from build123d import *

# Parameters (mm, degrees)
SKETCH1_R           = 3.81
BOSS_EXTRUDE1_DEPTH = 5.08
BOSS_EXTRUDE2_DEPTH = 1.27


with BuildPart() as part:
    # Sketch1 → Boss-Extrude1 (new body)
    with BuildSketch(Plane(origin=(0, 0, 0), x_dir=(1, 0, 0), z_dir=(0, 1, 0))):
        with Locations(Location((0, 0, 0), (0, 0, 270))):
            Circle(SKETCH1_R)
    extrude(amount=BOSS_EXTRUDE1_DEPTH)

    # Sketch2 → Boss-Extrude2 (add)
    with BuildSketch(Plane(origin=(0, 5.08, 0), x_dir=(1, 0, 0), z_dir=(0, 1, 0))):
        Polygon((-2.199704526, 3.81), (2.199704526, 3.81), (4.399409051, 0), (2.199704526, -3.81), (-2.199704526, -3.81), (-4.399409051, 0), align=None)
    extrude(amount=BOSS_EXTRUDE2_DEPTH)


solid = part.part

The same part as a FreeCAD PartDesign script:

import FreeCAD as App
import Part
import Sketcher

V = App.Vector
Q = App.Units.Quantity


def add_polygon(sketch, points):
    """Adds a closed chain of lines whose ends are joined by coincident constraints."""
    first, n = sketch.GeometryCount, len(points)
    for a, b in zip(points, points[1:] + points[:1]):
        sketch.addGeometry(Part.LineSegment(App.Vector(*a, 0), App.Vector(*b, 0)), False)
    for i in range(n):
        sketch.addConstraint(Sketcher.Constraint("Coincident", first + i, 2, first + (i + 1) % n, 1))

doc = App.newDocument("Part")
params = doc.addObject("Spreadsheet::Sheet", "Params")
for row, (alias, value) in enumerate([
    ("sketch1_diameter", "0.3 in"),
    ("pad1_length", "0.2 in"),
    ("pad2_length", "0.05 in"),
], start=1):
    params.set(f"A{row}", alias)
    params.set(f"B{row}", "=" + value)
    params.setAlias(f"B{row}", alias)

body = doc.addObject("PartDesign::Body", "Body")

sketch1 = doc.addObject("Sketcher::SketchObject", "Sketch")
body.addObject(sketch1)
sketch1.AttachmentSupport = (doc.XZ_Plane, [""])
sketch1.MapMode = "FlatFace"
sketch1.addGeometry(Part.Circle(V(0, 0, 0), V(0, 0, 1), 3.8), False)
sketch1.addConstraint([
    Sketcher.Constraint("Coincident", 0, 3, -1, 1),
    Sketcher.Constraint("Diameter", 0, Q("0.3 in")),
])
sketch1.setExpression("Constraints[1]", "Params.sketch1_diameter")
pad1 = doc.addObject("PartDesign::Pad", "Pad")
body.addObject(pad1)
pad1.Profile = sketch1
pad1.setExpression("Length", "Params.pad1_length")
pad1.Reversed = True

sketch2 = doc.addObject("Sketcher::SketchObject", "Sketch001")
body.addObject(sketch2)
sketch2.AttachmentSupport = (doc.XZ_Plane, [""])
sketch2.MapMode = "FlatFace"
sketch2.AttachmentOffset = App.Placement(V(0, 0, -0.2 * 25.4), App.Rotation())
add_polygon(sketch2, [(2.2, -3.8), (-2.2, -3.8), (-4.4, 0), (-2.2, 3.8), (2.2, 3.8), (4.4, 0)])
sketch2.addConstraint([
    Sketcher.Constraint("Horizontal", 0),
    Sketcher.Constraint("Horizontal", 3),
    Sketcher.Constraint("Symmetric", 0, 2, 3, 2, -1, 1),
    Sketcher.Constraint("Symmetric", 1, 2, 4, 2, -1, 1),
    Sketcher.Constraint("PointOnObject", 1, 2, -1),
    Sketcher.Constraint("Parallel", 2, 5),
    Sketcher.Constraint("Vertical", 0, 2, 2, 2),
    Sketcher.Constraint("Angle", 1, Q("120 deg")),
    Sketcher.Constraint("DistanceY", 0, 2, 2, 2, Q("0.3 in")),
    Sketcher.Constraint("DistanceX", 0, 2, 0, 1, Q("4.399409 mm")),
])
pad2 = doc.addObject("PartDesign::Pad", "Pad001")
body.addObject(pad2)
pad2.Profile = sketch2
pad2.setExpression("Length", "Params.pad2_length")
pad2.Reversed = True

doc.recompute()
